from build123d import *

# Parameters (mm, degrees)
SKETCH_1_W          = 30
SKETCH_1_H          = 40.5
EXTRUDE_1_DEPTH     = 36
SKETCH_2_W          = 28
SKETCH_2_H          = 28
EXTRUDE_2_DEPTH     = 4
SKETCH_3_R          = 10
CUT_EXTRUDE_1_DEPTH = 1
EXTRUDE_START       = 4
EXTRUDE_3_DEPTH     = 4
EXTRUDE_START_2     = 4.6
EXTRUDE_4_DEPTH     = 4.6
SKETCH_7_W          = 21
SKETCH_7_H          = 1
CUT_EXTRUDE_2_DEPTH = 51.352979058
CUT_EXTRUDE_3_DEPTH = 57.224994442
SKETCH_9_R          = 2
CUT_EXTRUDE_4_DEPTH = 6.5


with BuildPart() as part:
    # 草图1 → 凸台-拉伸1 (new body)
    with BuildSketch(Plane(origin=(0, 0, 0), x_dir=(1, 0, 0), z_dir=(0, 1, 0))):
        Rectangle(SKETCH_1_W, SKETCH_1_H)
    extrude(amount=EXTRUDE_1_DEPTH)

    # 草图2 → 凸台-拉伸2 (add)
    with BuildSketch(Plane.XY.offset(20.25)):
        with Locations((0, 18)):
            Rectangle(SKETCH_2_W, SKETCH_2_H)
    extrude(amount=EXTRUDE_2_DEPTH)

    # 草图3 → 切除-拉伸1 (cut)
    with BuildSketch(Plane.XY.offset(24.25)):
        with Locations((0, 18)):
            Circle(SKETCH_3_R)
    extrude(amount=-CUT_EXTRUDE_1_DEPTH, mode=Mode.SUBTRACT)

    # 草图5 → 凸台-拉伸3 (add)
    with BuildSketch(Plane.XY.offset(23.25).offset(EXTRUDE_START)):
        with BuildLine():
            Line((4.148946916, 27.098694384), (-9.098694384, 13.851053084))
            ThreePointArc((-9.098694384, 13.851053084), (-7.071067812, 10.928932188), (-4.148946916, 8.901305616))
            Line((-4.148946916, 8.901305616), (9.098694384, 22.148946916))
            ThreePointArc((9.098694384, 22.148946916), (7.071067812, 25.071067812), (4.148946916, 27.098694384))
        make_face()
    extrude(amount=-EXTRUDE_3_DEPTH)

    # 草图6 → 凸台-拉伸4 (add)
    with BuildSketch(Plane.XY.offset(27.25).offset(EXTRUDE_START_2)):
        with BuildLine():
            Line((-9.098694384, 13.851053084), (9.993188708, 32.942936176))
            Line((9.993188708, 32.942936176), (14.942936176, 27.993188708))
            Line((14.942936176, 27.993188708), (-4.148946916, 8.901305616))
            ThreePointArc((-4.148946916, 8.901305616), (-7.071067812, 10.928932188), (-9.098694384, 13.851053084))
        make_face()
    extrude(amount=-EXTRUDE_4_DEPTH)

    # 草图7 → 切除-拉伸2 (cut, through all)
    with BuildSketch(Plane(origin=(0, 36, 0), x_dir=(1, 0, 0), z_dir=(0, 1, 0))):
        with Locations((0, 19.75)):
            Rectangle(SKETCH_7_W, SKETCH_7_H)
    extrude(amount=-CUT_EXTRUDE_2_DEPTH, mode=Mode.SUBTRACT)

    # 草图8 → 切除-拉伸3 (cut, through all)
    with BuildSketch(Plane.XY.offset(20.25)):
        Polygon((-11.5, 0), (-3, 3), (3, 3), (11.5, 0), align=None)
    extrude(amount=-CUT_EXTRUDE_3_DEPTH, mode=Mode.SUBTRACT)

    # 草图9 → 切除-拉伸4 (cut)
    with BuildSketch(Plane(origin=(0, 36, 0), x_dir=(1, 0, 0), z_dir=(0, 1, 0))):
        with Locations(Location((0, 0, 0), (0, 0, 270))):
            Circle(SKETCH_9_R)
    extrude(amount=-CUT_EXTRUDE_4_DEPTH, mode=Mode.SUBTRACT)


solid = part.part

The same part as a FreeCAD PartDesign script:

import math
import FreeCAD as App
import Part
import Sketcher

V = App.Vector
Q = App.Units.Quantity

doc = App.newDocument("Part")
body = doc.addObject("PartDesign::Body", "Body")

sketch1 = doc.addObject("Sketcher::SketchObject", "Sketch")
body.addObject(sketch1)
sketch1.AttachmentSupport = (doc.XZ_Plane, [""])
sketch1.MapMode = "FlatFace"
sketch1.addGeometry([
    Part.LineSegment(V(-15, -20, 0), V(-15, 20, 0)),
    Part.LineSegment(V(-15, 20, 0), V(15, 20, 0)),
    Part.LineSegment(V(15, 20, 0), V(15, -20, 0)),
    Part.LineSegment(V(15, -20, 0), V(-15, -20, 0)),
], False)
sketch1.addConstraint([
    Sketcher.Constraint("Coincident", 0, 2, 1, 1),
    Sketcher.Constraint("Coincident", 1, 2, 2, 1),
    Sketcher.Constraint("Coincident", 2, 2, 3, 1),
    Sketcher.Constraint("Coincident", 3, 2, 0, 1),
    Sketcher.Constraint("Vertical", 0),
    Sketcher.Constraint("Horizontal", 1),
    Sketcher.Constraint("Vertical", 2),
    Sketcher.Constraint("Horizontal", 3),
    Sketcher.Constraint("Symmetric", 0, 2, 2, 2, -1, 1),
    Sketcher.Constraint("DistanceX", 1, 1, 1, 2, 30.0),
    Sketcher.Constraint("DistanceY", 0, 1, 0, 2, 40.5),
])
pad1 = doc.addObject("PartDesign::Pad", "Pad")
body.addObject(pad1)
pad1.Profile = sketch1
pad1.Length = 36
pad1.Reversed = True

sketch2 = doc.addObject("Sketcher::SketchObject", "Sketch001")
body.addObject(sketch2)
sketch2.AttachmentSupport = (doc.XY_Plane, [""])
sketch2.MapMode = "FlatFace"
sketch2.AttachmentOffset = App.Placement(V(0, 0, 20.25), App.Rotation())
sketch2.addGeometry([
    Part.LineSegment(V(-14, 32, 0), V(-14, 4, 0)),
    Part.LineSegment(V(-14, 4, 0), V(14, 4, 0)),
    Part.LineSegment(V(14, 4, 0), V(14, 32, 0)),
    Part.LineSegment(V(14, 32, 0), V(-14, 32, 0)),
], False)
sketch2.addConstraint([
    Sketcher.Constraint("Coincident", 0, 2, 1, 1),
    Sketcher.Constraint("Coincident", 1, 2, 2, 1),
    Sketcher.Constraint("Coincident", 2, 2, 3, 1),
    Sketcher.Constraint("Coincident", 3, 2, 0, 1),
    Sketcher.Constraint("Vertical", 0),
    Sketcher.Constraint("Horizontal", 1),
    Sketcher.Constraint("Vertical", 2),
    Sketcher.Constraint("Horizontal", 3),
    Sketcher.Constraint("Equal", 3, 0),
    Sketcher.Constraint("DistanceX", 1, 1, 1, 2, 28.0),
    Sketcher.Constraint("DistanceX", 0, 2, -1, 1, 14.0),
    Sketcher.Constraint("DistanceY", -1, 1, 0, 2, 4.0),
])
pad2 = doc.addObject("PartDesign::Pad", "Pad001")
body.addObject(pad2)
pad2.Profile = sketch2
pad2.Length = 4

sketch3 = doc.addObject("Sketcher::SketchObject", "Sketch002")
body.addObject(sketch3)
sketch3.AttachmentSupport = (doc.XY_Plane, [""])
sketch3.MapMode = "FlatFace"
sketch3.AttachmentOffset = App.Placement(V(0, 0, 24.25), App.Rotation())
sketch3.addGeometry(Part.Circle(V(0, 18, 0), V(0, 0, 1), 10), False)
sketch3.addConstraint([
    Sketcher.Constraint("PointOnObject", 0, 3, -2),
    Sketcher.Constraint("Diameter", 0, 20.0),
    Sketcher.Constraint("DistanceY", -1, 1, 0, 3, 18.0),
])
pocket1 = doc.addObject("PartDesign::Pocket", "Pocket")
body.addObject(pocket1)
pocket1.Profile = sketch3
pocket1.Length = 1

sketch4 = doc.addObject("Sketcher::SketchObject", "Sketch003")
body.addObject(sketch4)
sketch4.AttachmentSupport = (doc.XY_Plane, [""])
sketch4.MapMode = "FlatFace"
sketch4.AttachmentOffset = App.Placement(V(0, 0, 27.25), App.Rotation())
sketch4.addGeometry([
    Part.LineSegment(V(4, 27, 0), V(-9, 14, 0)),
    Part.ArcOfCircle(Part.Circle(V(0, 18, 0), V(0, 0, 1), 10), math.radians(-155), math.radians(-115)),
    Part.LineSegment(V(-4, 9, 0), V(9, 22, 0)),
    Part.ArcOfCircle(Part.Circle(V(0, 18, 0), V(0, 0, 1), 10), math.radians(25), math.radians(65)),
], False)
sketch4.addConstraint([
    Sketcher.Constraint("Coincident", 0, 2, 1, 1),
    Sketcher.Constraint("Coincident", 1, 2, 2, 1),
    Sketcher.Constraint("Coincident", 2, 2, 3, 1),
    Sketcher.Constraint("Coincident", 3, 2, 0, 1),
    Sketcher.Constraint("Coincident", 3, 3, 1, 3),
    Sketcher.Constraint("Equal", 1, 3),
    Sketcher.Constraint("PointOnObject", 1, 3, -2),
    Sketcher.Constraint("Parallel", 0, 2),
    Sketcher.Constraint("Equal", 0, 2),
    Sketcher.Constraint("Radius", 1, 10.0),
    Sketcher.Constraint("Angle", 0, Q("-135 deg")),
    Sketcher.Constraint("DistanceY", -1, 1, 1, 3, 18.0),
    Sketcher.Constraint("DistanceX", 1, 2, 2, 2, 13.247641),
])
pad3 = doc.addObject("PartDesign::Pad", "Pad002")
body.addObject(pad3)
pad3.Profile = sketch4
pad3.Length = 4
pad3.Reversed = True

sketch5 = doc.addObject("Sketcher::SketchObject", "Sketch004")
body.addObject(sketch5)
sketch5.AttachmentSupport = (doc.XY_Plane, [""])
sketch5.MapMode = "FlatFace"
sketch5.AttachmentOffset = App.Placement(V(0, 0, 31.85), App.Rotation())
sketch5.addGeometry([
    Part.LineSegment(V(10, 33, 0), V(-9, 14, 0)),
    Part.ArcOfCircle(Part.Circle(V(0, 18, 0), V(0, 0, 1), 10), math.radians(-155), math.radians(-115)),
    Part.LineSegment(V(-4, 9, 0), V(15, 28, 0)),
    Part.LineSegment(V(15, 28, 0), V(10, 33, 0)),
], False)
sketch5.addConstraint([
    Sketcher.Constraint("Coincident", 0, 2, 1, 1),
    Sketcher.Constraint("Coincident", 1, 2, 2, 1),
    Sketcher.Constraint("Coincident", 2, 2, 3, 1),
    Sketcher.Constraint("Coincident", 3, 2, 0, 1),
    Sketcher.Constraint("PointOnObject", 1, 3, -2),
    Sketcher.Constraint("Parallel", 0, 2),
    Sketcher.Constraint("Perpendicular", 2, 3),
    Sketcher.Constraint("Equal", 0, 2),
    Sketcher.Constraint("Radius", 1, 10.0),
    Sketcher.Constraint("Angle", 0, Q("-135 deg")),
    Sketcher.Constraint("Distance", 0, 27.0),
    Sketcher.Constraint("Distance", 3, 7.0),
    Sketcher.Constraint("DistanceY", -1, 1, 1, 3, 18.0),
])
pad4 = doc.addObject("PartDesign::Pad", "Pad003")
body.addObject(pad4)
pad4.Profile = sketch5
pad4.Length = 4.6
pad4.Reversed = True

sketch6 = doc.addObject("Sketcher::SketchObject", "Sketch005")
body.addObject(sketch6)
sketch6.AttachmentSupport = (doc.XZ_Plane, [""])
sketch6.MapMode = "FlatFace"
sketch6.AttachmentOffset = App.Placement(V(0, 0, -36), App.Rotation())
sketch6.addGeometry([
    Part.LineSegment(V(-10.5, -20.2, 0), V(-10.5, -19.2, 0)),
    Part.LineSegment(V(-10.5, -19.2, 0), V(10.5, -19.2, 0)),
    Part.LineSegment(V(10.5, -19.2, 0), V(10.5, -20.2, 0)),
    Part.LineSegment(V(10.5, -20.2, 0), V(-10.5, -20.2, 0)),
], False)
sketch6.addConstraint([
    Sketcher.Constraint("Coincident", 0, 2, 1, 1),
    Sketcher.Constraint("Coincident", 1, 2, 2, 1),
    Sketcher.Constraint("Coincident", 2, 2, 3, 1),
    Sketcher.Constraint("Coincident", 3, 2, 0, 1),
    Sketcher.Constraint("Vertical", 0),
    Sketcher.Constraint("Horizontal", 1),
    Sketcher.Constraint("Vertical", 2),
    Sketcher.Constraint("Horizontal", 3),
    Sketcher.Constraint("DistanceX", 1, 1, 1, 2, 21.0),
    Sketcher.Constraint("DistanceY", 0, 1, 0, 2, 1.0),
    Sketcher.Constraint("DistanceX", 0, 2, -1, 1, 10.5),
    Sketcher.Constraint("DistanceY", 0, 2, -1, 1, 19.25),
])
pocket2 = doc.addObject("PartDesign::Pocket", "Pocket001")
body.addObject(pocket2)
pocket2.Profile = sketch6
pocket2.Type = "ThroughAll"
pocket2.Reversed = True

sketch7 = doc.addObject("Sketcher::SketchObject", "Sketch006")
body.addObject(sketch7)
sketch7.AttachmentSupport = (doc.XY_Plane, [""])
sketch7.MapMode = "FlatFace"
sketch7.AttachmentOffset = App.Placement(V(0, 0, 20.25), App.Rotation())
sketch7.addGeometry([
    Part.LineSegment(V(-3, 3, 0), V(-12, 0, 0)),
    Part.LineSegment(V(-12, 0, 0), V(12, 0, 0)),
    Part.LineSegment(V(12, 0, 0), V(3, 3, 0)),
    Part.LineSegment(V(3, 3, 0), V(-3, 3, 0)),
], False)
sketch7.addConstraint([
    Sketcher.Constraint("Coincident", 0, 2, 1, 1),
    Sketcher.Constraint("Coincident", 1, 2, 2, 1),
    Sketcher.Constraint("Coincident", 2, 2, 3, 1),
    Sketcher.Constraint("Coincident", 3, 2, 0, 1),
    Sketcher.Constraint("Horizontal", 1),
    Sketcher.Constraint("Horizontal", 3),
    Sketcher.Constraint("Symmetric", 0, 2, 1, 2, -1, 1),
    Sketcher.Constraint("Equal", 0, 2),
    Sketcher.Constraint("DistanceX", 1, 1, 1, 2, 23.0),
    Sketcher.Constraint("DistanceX", 3, 2, 3, 1, 6.0),
    Sketcher.Constraint("DistanceY", -1, 1, 2, 2, 3.0),
])
pocket3 = doc.addObject("PartDesign::Pocket", "Pocket002")
body.addObject(pocket3)
pocket3.Profile = sketch7
pocket3.Type = "ThroughAll"

sketch8 = doc.addObject("Sketcher::SketchObject", "Sketch007")
body.addObject(sketch8)
sketch8.AttachmentSupport = (doc.XZ_Plane, [""])
sketch8.MapMode = "FlatFace"
sketch8.AttachmentOffset = App.Placement(V(0, 0, -36), App.Rotation())
sketch8.addGeometry(Part.Circle(V(0, 0, 0), V(0, 0, 1), 2), False)
sketch8.addConstraint([
    Sketcher.Constraint("Coincident", 0, 3, -1, 1),
    Sketcher.Constraint("Diameter", 0, 4.0),
])
pocket4 = doc.addObject("PartDesign::Pocket", "Pocket003")
body.addObject(pocket4)
pocket4.Profile = sketch8
pocket4.Length = 6.5
pocket4.Reversed = True

doc.recompute()
